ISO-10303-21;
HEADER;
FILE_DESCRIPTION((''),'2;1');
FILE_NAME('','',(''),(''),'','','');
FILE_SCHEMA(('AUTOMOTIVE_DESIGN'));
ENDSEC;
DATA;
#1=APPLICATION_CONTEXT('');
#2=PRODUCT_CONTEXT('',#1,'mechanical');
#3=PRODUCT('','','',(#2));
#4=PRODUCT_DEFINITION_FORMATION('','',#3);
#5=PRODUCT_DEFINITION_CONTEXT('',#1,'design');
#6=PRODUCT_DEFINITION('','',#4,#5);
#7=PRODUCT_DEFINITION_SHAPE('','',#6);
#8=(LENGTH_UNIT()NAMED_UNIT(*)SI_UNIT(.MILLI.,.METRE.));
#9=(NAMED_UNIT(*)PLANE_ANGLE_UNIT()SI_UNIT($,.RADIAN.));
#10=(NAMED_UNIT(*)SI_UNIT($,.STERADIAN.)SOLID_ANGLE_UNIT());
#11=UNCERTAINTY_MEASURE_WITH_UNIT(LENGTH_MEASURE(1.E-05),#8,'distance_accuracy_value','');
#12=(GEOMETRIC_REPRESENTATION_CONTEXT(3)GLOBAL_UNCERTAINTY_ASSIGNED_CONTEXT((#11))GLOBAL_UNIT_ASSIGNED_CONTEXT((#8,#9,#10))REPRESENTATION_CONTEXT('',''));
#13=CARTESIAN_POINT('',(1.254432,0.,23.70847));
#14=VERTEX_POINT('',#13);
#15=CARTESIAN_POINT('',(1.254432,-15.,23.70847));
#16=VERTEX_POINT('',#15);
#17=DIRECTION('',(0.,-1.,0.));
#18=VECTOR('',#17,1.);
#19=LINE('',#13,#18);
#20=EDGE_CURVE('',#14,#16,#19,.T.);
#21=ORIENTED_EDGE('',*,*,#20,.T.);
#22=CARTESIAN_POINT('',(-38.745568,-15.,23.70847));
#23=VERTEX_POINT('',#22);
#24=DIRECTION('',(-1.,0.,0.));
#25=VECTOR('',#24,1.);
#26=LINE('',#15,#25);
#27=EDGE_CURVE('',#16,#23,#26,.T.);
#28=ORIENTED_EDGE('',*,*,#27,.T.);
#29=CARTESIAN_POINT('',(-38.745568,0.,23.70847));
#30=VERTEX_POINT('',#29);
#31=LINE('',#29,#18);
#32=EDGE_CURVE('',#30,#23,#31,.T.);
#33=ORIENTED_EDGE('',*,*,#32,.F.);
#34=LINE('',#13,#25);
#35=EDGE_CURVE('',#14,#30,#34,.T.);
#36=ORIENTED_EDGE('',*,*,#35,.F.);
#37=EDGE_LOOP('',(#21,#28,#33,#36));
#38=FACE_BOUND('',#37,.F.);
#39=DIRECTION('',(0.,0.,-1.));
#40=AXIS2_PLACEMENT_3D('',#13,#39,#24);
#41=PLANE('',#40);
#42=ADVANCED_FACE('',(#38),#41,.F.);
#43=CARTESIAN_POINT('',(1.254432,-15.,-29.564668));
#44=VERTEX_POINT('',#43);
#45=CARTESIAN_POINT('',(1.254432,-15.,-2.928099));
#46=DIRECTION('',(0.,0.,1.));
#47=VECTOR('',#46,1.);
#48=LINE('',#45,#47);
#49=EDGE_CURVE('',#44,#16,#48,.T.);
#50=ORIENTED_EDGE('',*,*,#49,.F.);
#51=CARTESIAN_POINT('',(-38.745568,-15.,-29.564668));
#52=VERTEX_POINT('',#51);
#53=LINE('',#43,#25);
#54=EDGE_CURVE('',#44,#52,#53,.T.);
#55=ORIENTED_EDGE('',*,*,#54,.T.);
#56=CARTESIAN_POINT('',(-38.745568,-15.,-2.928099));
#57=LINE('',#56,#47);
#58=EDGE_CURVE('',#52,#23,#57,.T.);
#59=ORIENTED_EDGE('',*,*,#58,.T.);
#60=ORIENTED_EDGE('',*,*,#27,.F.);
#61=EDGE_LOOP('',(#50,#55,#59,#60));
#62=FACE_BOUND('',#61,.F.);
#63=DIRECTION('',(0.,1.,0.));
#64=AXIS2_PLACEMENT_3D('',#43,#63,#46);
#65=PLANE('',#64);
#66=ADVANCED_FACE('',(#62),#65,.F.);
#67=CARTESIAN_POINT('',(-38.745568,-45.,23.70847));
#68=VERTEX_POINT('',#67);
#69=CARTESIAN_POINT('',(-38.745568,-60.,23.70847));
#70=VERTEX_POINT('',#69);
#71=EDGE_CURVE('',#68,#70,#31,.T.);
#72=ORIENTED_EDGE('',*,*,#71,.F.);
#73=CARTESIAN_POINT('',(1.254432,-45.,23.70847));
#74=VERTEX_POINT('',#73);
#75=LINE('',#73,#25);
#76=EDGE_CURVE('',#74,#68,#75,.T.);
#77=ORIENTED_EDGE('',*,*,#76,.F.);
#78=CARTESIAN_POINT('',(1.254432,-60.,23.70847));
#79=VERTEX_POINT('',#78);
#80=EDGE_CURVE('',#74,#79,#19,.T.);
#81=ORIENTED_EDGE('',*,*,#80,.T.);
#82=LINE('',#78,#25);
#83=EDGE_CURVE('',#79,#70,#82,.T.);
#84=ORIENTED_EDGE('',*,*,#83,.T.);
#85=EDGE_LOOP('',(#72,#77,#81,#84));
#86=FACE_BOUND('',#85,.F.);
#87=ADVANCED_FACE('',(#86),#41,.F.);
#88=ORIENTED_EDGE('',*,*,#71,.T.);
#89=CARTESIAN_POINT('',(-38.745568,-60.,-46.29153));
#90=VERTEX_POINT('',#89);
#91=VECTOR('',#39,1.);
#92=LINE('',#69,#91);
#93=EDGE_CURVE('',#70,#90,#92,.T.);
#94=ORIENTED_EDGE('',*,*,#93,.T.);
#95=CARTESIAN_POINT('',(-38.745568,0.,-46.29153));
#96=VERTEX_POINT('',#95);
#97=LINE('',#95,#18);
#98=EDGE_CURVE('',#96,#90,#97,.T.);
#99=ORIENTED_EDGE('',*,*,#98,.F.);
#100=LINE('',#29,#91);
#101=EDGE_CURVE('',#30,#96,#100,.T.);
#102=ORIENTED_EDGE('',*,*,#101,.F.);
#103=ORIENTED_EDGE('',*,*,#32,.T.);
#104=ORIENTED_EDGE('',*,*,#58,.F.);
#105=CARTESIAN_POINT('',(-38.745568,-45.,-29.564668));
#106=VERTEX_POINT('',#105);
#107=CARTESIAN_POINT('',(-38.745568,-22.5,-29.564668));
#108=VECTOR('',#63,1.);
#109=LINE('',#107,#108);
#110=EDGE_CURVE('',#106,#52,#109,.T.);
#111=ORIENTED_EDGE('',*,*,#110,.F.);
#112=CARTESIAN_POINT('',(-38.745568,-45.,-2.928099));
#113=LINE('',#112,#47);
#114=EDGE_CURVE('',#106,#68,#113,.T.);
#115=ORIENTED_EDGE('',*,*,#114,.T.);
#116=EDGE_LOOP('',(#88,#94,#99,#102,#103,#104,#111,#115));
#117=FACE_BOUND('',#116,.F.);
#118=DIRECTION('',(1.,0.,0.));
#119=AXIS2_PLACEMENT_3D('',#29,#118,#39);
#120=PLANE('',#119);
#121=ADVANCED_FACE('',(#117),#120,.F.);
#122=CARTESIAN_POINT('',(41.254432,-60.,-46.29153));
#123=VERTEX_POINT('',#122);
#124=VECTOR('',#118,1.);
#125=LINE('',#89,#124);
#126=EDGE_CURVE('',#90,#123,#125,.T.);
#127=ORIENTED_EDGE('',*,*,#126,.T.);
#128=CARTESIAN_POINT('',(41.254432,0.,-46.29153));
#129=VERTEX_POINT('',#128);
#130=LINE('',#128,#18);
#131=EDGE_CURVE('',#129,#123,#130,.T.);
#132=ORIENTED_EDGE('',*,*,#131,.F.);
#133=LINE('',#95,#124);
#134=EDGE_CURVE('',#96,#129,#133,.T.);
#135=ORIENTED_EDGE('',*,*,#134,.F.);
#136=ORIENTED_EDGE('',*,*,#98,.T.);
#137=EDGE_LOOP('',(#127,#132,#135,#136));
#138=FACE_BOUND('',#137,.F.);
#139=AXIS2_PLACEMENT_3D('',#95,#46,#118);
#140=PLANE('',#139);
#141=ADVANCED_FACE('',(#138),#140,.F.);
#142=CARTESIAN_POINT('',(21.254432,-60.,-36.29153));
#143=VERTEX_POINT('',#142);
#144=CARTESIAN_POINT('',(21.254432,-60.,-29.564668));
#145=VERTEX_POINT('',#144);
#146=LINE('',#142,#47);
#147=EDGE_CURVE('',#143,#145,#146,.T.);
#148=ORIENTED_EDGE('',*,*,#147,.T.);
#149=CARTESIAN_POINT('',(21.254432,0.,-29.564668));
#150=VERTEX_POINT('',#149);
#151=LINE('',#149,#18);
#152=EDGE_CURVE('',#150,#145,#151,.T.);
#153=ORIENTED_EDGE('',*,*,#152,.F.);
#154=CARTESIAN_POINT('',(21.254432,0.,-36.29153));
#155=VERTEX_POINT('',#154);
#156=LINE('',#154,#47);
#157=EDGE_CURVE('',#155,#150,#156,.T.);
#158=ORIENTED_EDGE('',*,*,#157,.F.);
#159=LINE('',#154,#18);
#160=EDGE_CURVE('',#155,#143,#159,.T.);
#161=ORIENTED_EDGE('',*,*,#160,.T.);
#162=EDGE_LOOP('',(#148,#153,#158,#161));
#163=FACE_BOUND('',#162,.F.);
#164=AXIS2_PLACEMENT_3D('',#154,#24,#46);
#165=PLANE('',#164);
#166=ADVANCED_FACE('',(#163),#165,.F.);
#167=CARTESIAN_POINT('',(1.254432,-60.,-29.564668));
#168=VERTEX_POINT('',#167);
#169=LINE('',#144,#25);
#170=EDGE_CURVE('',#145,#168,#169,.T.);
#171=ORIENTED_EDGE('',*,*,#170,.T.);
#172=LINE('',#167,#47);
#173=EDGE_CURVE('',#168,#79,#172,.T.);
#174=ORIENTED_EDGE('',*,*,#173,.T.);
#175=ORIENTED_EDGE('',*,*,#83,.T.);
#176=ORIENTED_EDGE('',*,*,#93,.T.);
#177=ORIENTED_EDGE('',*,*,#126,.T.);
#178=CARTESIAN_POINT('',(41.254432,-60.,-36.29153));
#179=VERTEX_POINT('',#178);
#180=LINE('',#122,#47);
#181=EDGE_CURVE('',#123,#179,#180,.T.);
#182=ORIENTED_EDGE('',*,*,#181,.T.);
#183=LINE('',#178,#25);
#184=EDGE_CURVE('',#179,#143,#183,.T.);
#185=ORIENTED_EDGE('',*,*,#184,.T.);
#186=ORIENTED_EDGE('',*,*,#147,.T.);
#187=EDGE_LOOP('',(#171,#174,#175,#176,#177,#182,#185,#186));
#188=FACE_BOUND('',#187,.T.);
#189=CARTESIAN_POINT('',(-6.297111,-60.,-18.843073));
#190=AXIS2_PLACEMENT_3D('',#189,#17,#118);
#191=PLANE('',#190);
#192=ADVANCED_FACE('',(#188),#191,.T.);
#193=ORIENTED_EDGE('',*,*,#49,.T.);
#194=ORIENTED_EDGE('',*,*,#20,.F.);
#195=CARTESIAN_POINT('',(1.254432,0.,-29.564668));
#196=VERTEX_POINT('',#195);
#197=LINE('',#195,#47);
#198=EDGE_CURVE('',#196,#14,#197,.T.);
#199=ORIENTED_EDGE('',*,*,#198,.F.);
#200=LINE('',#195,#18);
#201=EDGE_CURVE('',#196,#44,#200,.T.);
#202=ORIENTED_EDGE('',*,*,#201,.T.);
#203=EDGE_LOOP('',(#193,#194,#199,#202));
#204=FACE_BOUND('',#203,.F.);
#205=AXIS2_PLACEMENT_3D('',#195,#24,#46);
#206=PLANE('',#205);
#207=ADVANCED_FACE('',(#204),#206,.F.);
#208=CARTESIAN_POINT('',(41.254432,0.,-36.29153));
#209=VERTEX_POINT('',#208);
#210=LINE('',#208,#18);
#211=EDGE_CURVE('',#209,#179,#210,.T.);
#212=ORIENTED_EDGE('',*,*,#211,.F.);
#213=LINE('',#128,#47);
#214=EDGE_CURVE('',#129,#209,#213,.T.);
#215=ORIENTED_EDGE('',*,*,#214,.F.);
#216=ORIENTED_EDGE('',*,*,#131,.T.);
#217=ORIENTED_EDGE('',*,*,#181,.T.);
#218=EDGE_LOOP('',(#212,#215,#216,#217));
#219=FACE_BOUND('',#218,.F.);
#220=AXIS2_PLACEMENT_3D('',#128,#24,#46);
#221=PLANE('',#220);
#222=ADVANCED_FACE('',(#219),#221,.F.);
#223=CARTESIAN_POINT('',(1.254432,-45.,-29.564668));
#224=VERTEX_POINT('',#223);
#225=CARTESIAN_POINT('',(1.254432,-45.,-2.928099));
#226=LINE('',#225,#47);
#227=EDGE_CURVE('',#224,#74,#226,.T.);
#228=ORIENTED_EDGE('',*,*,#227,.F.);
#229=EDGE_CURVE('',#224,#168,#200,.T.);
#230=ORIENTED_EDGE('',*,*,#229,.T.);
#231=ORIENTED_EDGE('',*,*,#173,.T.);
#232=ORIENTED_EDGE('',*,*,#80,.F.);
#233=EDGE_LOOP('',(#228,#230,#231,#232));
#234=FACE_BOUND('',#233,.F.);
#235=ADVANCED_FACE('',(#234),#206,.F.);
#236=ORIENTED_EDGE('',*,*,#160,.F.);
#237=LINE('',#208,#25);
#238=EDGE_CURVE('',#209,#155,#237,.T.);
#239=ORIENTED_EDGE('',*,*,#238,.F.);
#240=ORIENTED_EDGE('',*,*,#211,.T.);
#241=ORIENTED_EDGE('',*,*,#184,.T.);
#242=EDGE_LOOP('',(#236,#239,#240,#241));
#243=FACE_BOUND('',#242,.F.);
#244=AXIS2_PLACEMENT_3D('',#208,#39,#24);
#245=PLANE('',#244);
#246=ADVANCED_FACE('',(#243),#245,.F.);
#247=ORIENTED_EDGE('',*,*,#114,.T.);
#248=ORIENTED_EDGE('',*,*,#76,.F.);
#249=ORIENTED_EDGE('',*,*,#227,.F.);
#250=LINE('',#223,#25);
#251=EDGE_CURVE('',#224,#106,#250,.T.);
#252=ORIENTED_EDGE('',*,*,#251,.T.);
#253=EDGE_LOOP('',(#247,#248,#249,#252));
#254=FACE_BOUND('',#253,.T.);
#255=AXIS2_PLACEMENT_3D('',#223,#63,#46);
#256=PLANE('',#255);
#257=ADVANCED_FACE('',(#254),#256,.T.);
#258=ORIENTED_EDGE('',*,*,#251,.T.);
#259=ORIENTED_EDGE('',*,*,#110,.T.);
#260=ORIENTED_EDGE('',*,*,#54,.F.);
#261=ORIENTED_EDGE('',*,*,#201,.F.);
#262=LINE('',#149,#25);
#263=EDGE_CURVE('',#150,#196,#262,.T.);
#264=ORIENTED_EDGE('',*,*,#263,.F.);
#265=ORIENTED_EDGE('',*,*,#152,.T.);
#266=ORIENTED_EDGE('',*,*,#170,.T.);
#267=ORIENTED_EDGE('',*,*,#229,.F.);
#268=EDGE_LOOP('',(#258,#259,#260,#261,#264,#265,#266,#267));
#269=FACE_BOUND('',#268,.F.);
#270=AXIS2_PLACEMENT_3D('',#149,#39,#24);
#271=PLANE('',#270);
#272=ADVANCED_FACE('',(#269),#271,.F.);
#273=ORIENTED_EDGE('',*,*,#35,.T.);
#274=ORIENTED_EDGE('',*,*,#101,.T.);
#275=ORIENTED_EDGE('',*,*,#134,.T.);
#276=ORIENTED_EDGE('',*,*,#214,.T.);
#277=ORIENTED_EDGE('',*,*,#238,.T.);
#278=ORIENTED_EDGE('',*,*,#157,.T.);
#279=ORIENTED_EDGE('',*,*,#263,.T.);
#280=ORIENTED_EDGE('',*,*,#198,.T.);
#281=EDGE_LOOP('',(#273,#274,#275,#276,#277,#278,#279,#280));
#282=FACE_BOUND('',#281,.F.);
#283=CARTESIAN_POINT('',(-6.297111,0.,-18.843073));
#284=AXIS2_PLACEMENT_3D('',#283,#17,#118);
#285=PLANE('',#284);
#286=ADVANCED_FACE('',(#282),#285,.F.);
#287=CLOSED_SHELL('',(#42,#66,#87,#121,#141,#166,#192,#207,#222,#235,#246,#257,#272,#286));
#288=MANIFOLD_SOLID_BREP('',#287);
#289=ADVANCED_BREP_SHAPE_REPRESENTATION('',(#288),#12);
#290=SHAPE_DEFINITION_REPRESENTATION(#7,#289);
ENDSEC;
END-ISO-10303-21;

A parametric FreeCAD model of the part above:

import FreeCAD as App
import Part
import Sketcher

V = App.Vector
Q = App.Units.Quantity


def add_polygon(sketch, points):
    """Adds a closed chain of lines whose ends are joined by coincident constraints."""
    first, n = sketch.GeometryCount, len(points)
    for a, b in zip(points, points[1:] + points[:1]):
        sketch.addGeometry(Part.LineSegment(App.Vector(*a, 0), App.Vector(*b, 0)), False)
    for i in range(n):
        sketch.addConstraint(Sketcher.Constraint("Coincident", first + i, 2, first + (i + 1) % n, 1))

doc = App.newDocument("Part")
body = doc.addObject("PartDesign::Body", "Body")

sketch1 = body.newObject("Sketcher::SketchObject", "Sketch")
sketch1.AttachmentSupport = (doc.getObject("XZ_Plane"), [""])
sketch1.MapMode = "FlatFace"
add_polygon(sketch1, [(1, 24), (-39, 24), (-39, -46), (41, -46), (41, -36), (21, -36), (21, -30), (1, -30)])
sketch1.addConstraint([
    Sketcher.Constraint("Horizontal", 0),
    Sketcher.Constraint("Vertical", 1),
    Sketcher.Constraint("Horizontal", 2),
    Sketcher.Constraint("Vertical", 3),
    Sketcher.Constraint("Horizontal", 4),
    Sketcher.Constraint("Vertical", 5),
    Sketcher.Constraint("Horizontal", 6),
    Sketcher.Constraint("Vertical", 7),
    Sketcher.Constraint("Equal", 4, 6),
    Sketcher.Constraint("DistanceX", 0, 2, 0, 1, Q("40 mm")),
    Sketcher.Constraint("DistanceX", 2, 1, 2, 2, Q("80 mm")),
    Sketcher.Constraint("DistanceY", 1, 2, 1, 1, Q("70 mm")),
    Sketcher.Constraint("DistanceY", 3, 1, 3, 2, Q("10 mm")),
    Sketcher.Constraint("DistanceY", 7, 1, 7, 2, Q("53.273138 mm")),
    Sketcher.Constraint("DistanceY", -1, 1, 0, 2, Q("23.70847 mm")),
    Sketcher.Constraint("DistanceX", 0, 2, -1, 1, Q("38.745568 mm")),
])
pad1 = body.newObject("PartDesign::Pad", "Pad")
pad1.Profile = sketch1
pad1.Length = 60

sketch2 = body.newObject("Sketcher::SketchObject", "Sketch001")
sketch2.AttachmentSupport = (doc.getObject("YZ_Plane"), [""])
sketch2.MapMode = "FlatFace"
sketch2.AttachmentOffset = App.Placement(V(0, 0, 1.254432), App.Rotation())
add_polygon(sketch2, [(-45, 24), (-45, -30), (-15, -30), (-15, 24)])
sketch2.addConstraint([
    Sketcher.Constraint("Vertical", 0),
    Sketcher.Constraint("Horizontal", 1),
    Sketcher.Constraint("Vertical", 2),
    Sketcher.Constraint("Horizontal", 3),
    Sketcher.Constraint("DistanceX", 1, 1, 1, 2, Q("30 mm")),
    Sketcher.Constraint("DistanceX", 0, 2, -1, 1, Q("45 mm")),
    Sketcher.Constraint("DistanceY", 0, 2, 0, 1, Q("53.273138 mm")),
    Sketcher.Constraint("DistanceY", 0, 2, -1, 1, Q("29.564668 mm")),
])
pocket1 = body.newObject("PartDesign::Pocket", "Pocket")
pocket1.Profile = sketch2
pocket1.Type = "ThroughAll"

doc.recompute()
